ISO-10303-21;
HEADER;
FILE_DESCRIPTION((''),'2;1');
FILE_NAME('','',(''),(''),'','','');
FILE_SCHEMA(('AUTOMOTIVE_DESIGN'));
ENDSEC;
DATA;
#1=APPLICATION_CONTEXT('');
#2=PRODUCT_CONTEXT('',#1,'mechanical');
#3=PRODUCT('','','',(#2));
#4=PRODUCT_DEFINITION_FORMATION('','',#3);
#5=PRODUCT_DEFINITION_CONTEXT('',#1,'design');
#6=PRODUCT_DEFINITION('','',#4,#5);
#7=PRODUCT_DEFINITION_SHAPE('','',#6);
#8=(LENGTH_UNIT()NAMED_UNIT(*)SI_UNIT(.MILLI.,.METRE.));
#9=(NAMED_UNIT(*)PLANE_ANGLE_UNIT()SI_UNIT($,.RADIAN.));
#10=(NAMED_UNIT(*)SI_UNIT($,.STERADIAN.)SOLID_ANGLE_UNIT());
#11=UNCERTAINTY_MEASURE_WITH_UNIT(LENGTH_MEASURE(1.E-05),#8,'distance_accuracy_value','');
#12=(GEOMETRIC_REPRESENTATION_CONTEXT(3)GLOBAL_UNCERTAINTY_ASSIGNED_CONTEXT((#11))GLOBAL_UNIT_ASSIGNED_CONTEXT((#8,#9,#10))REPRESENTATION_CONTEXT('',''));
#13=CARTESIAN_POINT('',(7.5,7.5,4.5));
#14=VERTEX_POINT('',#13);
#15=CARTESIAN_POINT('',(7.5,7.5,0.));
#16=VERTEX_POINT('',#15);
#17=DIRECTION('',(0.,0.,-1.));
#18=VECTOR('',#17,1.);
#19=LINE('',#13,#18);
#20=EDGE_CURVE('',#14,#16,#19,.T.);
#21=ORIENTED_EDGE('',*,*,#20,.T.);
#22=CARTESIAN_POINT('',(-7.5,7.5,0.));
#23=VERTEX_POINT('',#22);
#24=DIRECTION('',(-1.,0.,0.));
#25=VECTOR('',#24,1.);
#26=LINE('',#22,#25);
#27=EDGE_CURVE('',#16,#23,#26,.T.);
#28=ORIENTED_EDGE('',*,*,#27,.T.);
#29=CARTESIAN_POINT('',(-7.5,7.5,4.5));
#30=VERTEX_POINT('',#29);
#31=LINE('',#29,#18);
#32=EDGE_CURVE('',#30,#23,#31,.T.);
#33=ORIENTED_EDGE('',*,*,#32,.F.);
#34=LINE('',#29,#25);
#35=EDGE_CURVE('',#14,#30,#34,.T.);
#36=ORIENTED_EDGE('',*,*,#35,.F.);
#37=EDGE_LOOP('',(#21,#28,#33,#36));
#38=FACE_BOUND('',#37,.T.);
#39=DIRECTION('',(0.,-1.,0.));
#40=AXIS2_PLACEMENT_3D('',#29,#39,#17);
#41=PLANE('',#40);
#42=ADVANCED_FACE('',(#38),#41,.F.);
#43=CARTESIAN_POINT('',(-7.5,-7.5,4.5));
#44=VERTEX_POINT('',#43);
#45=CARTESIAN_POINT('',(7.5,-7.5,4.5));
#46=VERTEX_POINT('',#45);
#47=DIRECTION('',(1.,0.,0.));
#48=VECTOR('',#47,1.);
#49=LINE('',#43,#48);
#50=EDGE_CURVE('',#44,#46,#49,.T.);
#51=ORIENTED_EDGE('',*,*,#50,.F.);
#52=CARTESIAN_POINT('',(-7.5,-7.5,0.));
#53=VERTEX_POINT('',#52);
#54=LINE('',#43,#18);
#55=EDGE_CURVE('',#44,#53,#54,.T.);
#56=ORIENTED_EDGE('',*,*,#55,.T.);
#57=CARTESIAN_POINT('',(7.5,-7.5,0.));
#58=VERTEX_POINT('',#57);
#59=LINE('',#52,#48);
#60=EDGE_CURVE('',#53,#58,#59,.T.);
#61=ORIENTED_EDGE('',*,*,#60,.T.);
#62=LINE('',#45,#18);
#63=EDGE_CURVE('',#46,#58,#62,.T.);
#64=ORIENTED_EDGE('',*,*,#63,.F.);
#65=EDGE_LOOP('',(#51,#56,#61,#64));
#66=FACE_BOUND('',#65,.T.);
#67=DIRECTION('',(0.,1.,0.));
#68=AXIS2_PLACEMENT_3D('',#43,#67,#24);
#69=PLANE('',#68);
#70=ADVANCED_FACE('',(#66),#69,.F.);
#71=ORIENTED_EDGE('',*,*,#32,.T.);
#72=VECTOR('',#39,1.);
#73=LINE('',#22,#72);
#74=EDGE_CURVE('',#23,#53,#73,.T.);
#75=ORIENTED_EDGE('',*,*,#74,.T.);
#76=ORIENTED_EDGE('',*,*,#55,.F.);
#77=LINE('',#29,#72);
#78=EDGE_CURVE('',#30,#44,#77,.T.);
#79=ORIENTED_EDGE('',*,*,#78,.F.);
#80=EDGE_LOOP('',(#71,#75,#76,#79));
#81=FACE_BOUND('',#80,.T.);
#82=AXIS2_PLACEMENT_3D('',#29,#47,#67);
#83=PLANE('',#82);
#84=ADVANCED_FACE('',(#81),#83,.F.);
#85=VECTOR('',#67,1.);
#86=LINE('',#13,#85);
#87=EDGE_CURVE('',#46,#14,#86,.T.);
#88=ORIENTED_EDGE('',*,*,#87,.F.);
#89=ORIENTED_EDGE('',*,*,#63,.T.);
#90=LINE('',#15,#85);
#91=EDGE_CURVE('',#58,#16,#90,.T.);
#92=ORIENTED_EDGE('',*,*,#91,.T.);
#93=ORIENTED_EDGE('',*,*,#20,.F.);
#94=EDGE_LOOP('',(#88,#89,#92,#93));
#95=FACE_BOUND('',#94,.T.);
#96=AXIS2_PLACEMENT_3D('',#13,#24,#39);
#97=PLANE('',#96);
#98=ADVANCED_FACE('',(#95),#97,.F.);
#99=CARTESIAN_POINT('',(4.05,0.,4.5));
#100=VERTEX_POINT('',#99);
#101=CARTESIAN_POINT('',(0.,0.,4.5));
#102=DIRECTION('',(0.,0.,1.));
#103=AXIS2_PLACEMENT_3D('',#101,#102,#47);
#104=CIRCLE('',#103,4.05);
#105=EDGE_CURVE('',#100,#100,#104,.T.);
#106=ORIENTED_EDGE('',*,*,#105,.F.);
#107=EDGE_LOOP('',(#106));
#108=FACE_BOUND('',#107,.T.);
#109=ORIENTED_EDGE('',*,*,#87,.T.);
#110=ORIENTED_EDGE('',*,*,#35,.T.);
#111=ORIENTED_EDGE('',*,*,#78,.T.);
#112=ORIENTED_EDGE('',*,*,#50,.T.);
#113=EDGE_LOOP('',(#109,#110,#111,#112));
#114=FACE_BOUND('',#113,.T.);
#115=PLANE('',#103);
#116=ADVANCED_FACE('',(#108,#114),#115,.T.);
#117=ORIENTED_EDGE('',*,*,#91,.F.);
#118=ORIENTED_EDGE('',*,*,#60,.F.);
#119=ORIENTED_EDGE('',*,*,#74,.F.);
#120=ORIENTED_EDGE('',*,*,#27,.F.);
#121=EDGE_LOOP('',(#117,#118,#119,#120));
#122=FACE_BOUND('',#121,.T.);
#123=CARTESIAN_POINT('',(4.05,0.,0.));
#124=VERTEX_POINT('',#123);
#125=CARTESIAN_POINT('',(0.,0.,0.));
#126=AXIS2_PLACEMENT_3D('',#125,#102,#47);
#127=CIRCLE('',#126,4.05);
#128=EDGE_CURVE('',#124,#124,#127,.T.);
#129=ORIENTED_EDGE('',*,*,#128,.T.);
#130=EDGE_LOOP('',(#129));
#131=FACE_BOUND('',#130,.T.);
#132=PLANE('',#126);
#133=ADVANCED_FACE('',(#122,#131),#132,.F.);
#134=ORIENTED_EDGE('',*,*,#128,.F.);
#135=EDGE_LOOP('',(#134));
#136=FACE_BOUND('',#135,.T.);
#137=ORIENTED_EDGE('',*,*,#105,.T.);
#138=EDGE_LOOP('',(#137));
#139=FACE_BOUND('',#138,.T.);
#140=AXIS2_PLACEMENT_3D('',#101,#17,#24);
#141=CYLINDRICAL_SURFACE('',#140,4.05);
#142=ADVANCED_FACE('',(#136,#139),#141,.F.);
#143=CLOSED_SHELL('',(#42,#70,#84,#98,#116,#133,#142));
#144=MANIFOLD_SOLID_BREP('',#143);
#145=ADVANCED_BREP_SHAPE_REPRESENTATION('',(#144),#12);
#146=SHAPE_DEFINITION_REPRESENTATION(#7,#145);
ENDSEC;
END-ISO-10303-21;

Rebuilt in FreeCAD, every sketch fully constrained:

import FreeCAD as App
import Part
import Sketcher

V = App.Vector
Q = App.Units.Quantity

doc = App.newDocument("Part")
params = doc.addObject("Spreadsheet::Sheet", "Params")
for row, (alias, value) in enumerate([
    ("sketch1_diameter", "8.1 mm"),
    ("sketch1_width", "15 mm"),
    ("pad1_length", "4.5 mm"),
], start=1):
    params.set(f"A{row}", alias)
    params.set(f"B{row}", "=" + value)
    params.setAlias(f"B{row}", alias)

body = doc.addObject("PartDesign::Body", "Body")

# Sketch on XY plane
sketch1 = body.newObject("Sketcher::SketchObject", "Sketch")
sketch1.AttachmentSupport = (doc.getObject("XY_Plane"), [""])
sketch1.MapMode = "FlatFace"
sketch1.addGeometry(Part.LineSegment(V(-7.5, 7.5, 0), V(-7.5, -7.5, 0)), False)
sketch1.addGeometry(Part.LineSegment(V(-7.5, -7.5, 0), V(7.5, -7.5, 0)), False)
sketch1.addGeometry(Part.LineSegment(V(7.5, -7.5, 0), V(7.5, 7.5, 0)), False)
sketch1.addGeometry(Part.LineSegment(V(7.5, 7.5, 0), V(-7.5, 7.5, 0)), False)
sketch1.addGeometry(Part.Circle(V(0, 0, 0), V(0, 0, 1), 4.05), False)
sketch1.addConstraint(Sketcher.Constraint("Coincident", 0, 2, 1, 1))
sketch1.addConstraint(Sketcher.Constraint("Coincident", 1, 2, 2, 1))
sketch1.addConstraint(Sketcher.Constraint("Coincident", 2, 2, 3, 1))
sketch1.addConstraint(Sketcher.Constraint("Coincident", 3, 2, 0, 1))
sketch1.addConstraint(Sketcher.Constraint("Vertical", 0))
sketch1.addConstraint(Sketcher.Constraint("Horizontal", 1))
sketch1.addConstraint(Sketcher.Constraint("Vertical", 2))
sketch1.addConstraint(Sketcher.Constraint("Horizontal", 3))
sketch1.addConstraint(Sketcher.Constraint("Coincident", 4, 3, -1, 1))
sketch1.addConstraint(Sketcher.Constraint("Symmetric", 0, 2, 2, 2, -1, 1))
sketch1.addConstraint(Sketcher.Constraint("Equal", 3, 0))
sketch1.addConstraint(Sketcher.Constraint("Diameter", 4, Q("8.1 mm")))
sketch1.addConstraint(Sketcher.Constraint("DistanceX", 1, 1, 1, 2, Q("15 mm")))
sketch1.setExpression("Constraints[11]", "Params.sketch1_diameter")
sketch1.setExpression("Constraints[12]", "Params.sketch1_width")
pad1 = body.newObject("PartDesign::Pad", "Pad")
pad1.Profile = sketch1
pad1.setExpression("Length", "Params.pad1_length")

doc.recompute()
